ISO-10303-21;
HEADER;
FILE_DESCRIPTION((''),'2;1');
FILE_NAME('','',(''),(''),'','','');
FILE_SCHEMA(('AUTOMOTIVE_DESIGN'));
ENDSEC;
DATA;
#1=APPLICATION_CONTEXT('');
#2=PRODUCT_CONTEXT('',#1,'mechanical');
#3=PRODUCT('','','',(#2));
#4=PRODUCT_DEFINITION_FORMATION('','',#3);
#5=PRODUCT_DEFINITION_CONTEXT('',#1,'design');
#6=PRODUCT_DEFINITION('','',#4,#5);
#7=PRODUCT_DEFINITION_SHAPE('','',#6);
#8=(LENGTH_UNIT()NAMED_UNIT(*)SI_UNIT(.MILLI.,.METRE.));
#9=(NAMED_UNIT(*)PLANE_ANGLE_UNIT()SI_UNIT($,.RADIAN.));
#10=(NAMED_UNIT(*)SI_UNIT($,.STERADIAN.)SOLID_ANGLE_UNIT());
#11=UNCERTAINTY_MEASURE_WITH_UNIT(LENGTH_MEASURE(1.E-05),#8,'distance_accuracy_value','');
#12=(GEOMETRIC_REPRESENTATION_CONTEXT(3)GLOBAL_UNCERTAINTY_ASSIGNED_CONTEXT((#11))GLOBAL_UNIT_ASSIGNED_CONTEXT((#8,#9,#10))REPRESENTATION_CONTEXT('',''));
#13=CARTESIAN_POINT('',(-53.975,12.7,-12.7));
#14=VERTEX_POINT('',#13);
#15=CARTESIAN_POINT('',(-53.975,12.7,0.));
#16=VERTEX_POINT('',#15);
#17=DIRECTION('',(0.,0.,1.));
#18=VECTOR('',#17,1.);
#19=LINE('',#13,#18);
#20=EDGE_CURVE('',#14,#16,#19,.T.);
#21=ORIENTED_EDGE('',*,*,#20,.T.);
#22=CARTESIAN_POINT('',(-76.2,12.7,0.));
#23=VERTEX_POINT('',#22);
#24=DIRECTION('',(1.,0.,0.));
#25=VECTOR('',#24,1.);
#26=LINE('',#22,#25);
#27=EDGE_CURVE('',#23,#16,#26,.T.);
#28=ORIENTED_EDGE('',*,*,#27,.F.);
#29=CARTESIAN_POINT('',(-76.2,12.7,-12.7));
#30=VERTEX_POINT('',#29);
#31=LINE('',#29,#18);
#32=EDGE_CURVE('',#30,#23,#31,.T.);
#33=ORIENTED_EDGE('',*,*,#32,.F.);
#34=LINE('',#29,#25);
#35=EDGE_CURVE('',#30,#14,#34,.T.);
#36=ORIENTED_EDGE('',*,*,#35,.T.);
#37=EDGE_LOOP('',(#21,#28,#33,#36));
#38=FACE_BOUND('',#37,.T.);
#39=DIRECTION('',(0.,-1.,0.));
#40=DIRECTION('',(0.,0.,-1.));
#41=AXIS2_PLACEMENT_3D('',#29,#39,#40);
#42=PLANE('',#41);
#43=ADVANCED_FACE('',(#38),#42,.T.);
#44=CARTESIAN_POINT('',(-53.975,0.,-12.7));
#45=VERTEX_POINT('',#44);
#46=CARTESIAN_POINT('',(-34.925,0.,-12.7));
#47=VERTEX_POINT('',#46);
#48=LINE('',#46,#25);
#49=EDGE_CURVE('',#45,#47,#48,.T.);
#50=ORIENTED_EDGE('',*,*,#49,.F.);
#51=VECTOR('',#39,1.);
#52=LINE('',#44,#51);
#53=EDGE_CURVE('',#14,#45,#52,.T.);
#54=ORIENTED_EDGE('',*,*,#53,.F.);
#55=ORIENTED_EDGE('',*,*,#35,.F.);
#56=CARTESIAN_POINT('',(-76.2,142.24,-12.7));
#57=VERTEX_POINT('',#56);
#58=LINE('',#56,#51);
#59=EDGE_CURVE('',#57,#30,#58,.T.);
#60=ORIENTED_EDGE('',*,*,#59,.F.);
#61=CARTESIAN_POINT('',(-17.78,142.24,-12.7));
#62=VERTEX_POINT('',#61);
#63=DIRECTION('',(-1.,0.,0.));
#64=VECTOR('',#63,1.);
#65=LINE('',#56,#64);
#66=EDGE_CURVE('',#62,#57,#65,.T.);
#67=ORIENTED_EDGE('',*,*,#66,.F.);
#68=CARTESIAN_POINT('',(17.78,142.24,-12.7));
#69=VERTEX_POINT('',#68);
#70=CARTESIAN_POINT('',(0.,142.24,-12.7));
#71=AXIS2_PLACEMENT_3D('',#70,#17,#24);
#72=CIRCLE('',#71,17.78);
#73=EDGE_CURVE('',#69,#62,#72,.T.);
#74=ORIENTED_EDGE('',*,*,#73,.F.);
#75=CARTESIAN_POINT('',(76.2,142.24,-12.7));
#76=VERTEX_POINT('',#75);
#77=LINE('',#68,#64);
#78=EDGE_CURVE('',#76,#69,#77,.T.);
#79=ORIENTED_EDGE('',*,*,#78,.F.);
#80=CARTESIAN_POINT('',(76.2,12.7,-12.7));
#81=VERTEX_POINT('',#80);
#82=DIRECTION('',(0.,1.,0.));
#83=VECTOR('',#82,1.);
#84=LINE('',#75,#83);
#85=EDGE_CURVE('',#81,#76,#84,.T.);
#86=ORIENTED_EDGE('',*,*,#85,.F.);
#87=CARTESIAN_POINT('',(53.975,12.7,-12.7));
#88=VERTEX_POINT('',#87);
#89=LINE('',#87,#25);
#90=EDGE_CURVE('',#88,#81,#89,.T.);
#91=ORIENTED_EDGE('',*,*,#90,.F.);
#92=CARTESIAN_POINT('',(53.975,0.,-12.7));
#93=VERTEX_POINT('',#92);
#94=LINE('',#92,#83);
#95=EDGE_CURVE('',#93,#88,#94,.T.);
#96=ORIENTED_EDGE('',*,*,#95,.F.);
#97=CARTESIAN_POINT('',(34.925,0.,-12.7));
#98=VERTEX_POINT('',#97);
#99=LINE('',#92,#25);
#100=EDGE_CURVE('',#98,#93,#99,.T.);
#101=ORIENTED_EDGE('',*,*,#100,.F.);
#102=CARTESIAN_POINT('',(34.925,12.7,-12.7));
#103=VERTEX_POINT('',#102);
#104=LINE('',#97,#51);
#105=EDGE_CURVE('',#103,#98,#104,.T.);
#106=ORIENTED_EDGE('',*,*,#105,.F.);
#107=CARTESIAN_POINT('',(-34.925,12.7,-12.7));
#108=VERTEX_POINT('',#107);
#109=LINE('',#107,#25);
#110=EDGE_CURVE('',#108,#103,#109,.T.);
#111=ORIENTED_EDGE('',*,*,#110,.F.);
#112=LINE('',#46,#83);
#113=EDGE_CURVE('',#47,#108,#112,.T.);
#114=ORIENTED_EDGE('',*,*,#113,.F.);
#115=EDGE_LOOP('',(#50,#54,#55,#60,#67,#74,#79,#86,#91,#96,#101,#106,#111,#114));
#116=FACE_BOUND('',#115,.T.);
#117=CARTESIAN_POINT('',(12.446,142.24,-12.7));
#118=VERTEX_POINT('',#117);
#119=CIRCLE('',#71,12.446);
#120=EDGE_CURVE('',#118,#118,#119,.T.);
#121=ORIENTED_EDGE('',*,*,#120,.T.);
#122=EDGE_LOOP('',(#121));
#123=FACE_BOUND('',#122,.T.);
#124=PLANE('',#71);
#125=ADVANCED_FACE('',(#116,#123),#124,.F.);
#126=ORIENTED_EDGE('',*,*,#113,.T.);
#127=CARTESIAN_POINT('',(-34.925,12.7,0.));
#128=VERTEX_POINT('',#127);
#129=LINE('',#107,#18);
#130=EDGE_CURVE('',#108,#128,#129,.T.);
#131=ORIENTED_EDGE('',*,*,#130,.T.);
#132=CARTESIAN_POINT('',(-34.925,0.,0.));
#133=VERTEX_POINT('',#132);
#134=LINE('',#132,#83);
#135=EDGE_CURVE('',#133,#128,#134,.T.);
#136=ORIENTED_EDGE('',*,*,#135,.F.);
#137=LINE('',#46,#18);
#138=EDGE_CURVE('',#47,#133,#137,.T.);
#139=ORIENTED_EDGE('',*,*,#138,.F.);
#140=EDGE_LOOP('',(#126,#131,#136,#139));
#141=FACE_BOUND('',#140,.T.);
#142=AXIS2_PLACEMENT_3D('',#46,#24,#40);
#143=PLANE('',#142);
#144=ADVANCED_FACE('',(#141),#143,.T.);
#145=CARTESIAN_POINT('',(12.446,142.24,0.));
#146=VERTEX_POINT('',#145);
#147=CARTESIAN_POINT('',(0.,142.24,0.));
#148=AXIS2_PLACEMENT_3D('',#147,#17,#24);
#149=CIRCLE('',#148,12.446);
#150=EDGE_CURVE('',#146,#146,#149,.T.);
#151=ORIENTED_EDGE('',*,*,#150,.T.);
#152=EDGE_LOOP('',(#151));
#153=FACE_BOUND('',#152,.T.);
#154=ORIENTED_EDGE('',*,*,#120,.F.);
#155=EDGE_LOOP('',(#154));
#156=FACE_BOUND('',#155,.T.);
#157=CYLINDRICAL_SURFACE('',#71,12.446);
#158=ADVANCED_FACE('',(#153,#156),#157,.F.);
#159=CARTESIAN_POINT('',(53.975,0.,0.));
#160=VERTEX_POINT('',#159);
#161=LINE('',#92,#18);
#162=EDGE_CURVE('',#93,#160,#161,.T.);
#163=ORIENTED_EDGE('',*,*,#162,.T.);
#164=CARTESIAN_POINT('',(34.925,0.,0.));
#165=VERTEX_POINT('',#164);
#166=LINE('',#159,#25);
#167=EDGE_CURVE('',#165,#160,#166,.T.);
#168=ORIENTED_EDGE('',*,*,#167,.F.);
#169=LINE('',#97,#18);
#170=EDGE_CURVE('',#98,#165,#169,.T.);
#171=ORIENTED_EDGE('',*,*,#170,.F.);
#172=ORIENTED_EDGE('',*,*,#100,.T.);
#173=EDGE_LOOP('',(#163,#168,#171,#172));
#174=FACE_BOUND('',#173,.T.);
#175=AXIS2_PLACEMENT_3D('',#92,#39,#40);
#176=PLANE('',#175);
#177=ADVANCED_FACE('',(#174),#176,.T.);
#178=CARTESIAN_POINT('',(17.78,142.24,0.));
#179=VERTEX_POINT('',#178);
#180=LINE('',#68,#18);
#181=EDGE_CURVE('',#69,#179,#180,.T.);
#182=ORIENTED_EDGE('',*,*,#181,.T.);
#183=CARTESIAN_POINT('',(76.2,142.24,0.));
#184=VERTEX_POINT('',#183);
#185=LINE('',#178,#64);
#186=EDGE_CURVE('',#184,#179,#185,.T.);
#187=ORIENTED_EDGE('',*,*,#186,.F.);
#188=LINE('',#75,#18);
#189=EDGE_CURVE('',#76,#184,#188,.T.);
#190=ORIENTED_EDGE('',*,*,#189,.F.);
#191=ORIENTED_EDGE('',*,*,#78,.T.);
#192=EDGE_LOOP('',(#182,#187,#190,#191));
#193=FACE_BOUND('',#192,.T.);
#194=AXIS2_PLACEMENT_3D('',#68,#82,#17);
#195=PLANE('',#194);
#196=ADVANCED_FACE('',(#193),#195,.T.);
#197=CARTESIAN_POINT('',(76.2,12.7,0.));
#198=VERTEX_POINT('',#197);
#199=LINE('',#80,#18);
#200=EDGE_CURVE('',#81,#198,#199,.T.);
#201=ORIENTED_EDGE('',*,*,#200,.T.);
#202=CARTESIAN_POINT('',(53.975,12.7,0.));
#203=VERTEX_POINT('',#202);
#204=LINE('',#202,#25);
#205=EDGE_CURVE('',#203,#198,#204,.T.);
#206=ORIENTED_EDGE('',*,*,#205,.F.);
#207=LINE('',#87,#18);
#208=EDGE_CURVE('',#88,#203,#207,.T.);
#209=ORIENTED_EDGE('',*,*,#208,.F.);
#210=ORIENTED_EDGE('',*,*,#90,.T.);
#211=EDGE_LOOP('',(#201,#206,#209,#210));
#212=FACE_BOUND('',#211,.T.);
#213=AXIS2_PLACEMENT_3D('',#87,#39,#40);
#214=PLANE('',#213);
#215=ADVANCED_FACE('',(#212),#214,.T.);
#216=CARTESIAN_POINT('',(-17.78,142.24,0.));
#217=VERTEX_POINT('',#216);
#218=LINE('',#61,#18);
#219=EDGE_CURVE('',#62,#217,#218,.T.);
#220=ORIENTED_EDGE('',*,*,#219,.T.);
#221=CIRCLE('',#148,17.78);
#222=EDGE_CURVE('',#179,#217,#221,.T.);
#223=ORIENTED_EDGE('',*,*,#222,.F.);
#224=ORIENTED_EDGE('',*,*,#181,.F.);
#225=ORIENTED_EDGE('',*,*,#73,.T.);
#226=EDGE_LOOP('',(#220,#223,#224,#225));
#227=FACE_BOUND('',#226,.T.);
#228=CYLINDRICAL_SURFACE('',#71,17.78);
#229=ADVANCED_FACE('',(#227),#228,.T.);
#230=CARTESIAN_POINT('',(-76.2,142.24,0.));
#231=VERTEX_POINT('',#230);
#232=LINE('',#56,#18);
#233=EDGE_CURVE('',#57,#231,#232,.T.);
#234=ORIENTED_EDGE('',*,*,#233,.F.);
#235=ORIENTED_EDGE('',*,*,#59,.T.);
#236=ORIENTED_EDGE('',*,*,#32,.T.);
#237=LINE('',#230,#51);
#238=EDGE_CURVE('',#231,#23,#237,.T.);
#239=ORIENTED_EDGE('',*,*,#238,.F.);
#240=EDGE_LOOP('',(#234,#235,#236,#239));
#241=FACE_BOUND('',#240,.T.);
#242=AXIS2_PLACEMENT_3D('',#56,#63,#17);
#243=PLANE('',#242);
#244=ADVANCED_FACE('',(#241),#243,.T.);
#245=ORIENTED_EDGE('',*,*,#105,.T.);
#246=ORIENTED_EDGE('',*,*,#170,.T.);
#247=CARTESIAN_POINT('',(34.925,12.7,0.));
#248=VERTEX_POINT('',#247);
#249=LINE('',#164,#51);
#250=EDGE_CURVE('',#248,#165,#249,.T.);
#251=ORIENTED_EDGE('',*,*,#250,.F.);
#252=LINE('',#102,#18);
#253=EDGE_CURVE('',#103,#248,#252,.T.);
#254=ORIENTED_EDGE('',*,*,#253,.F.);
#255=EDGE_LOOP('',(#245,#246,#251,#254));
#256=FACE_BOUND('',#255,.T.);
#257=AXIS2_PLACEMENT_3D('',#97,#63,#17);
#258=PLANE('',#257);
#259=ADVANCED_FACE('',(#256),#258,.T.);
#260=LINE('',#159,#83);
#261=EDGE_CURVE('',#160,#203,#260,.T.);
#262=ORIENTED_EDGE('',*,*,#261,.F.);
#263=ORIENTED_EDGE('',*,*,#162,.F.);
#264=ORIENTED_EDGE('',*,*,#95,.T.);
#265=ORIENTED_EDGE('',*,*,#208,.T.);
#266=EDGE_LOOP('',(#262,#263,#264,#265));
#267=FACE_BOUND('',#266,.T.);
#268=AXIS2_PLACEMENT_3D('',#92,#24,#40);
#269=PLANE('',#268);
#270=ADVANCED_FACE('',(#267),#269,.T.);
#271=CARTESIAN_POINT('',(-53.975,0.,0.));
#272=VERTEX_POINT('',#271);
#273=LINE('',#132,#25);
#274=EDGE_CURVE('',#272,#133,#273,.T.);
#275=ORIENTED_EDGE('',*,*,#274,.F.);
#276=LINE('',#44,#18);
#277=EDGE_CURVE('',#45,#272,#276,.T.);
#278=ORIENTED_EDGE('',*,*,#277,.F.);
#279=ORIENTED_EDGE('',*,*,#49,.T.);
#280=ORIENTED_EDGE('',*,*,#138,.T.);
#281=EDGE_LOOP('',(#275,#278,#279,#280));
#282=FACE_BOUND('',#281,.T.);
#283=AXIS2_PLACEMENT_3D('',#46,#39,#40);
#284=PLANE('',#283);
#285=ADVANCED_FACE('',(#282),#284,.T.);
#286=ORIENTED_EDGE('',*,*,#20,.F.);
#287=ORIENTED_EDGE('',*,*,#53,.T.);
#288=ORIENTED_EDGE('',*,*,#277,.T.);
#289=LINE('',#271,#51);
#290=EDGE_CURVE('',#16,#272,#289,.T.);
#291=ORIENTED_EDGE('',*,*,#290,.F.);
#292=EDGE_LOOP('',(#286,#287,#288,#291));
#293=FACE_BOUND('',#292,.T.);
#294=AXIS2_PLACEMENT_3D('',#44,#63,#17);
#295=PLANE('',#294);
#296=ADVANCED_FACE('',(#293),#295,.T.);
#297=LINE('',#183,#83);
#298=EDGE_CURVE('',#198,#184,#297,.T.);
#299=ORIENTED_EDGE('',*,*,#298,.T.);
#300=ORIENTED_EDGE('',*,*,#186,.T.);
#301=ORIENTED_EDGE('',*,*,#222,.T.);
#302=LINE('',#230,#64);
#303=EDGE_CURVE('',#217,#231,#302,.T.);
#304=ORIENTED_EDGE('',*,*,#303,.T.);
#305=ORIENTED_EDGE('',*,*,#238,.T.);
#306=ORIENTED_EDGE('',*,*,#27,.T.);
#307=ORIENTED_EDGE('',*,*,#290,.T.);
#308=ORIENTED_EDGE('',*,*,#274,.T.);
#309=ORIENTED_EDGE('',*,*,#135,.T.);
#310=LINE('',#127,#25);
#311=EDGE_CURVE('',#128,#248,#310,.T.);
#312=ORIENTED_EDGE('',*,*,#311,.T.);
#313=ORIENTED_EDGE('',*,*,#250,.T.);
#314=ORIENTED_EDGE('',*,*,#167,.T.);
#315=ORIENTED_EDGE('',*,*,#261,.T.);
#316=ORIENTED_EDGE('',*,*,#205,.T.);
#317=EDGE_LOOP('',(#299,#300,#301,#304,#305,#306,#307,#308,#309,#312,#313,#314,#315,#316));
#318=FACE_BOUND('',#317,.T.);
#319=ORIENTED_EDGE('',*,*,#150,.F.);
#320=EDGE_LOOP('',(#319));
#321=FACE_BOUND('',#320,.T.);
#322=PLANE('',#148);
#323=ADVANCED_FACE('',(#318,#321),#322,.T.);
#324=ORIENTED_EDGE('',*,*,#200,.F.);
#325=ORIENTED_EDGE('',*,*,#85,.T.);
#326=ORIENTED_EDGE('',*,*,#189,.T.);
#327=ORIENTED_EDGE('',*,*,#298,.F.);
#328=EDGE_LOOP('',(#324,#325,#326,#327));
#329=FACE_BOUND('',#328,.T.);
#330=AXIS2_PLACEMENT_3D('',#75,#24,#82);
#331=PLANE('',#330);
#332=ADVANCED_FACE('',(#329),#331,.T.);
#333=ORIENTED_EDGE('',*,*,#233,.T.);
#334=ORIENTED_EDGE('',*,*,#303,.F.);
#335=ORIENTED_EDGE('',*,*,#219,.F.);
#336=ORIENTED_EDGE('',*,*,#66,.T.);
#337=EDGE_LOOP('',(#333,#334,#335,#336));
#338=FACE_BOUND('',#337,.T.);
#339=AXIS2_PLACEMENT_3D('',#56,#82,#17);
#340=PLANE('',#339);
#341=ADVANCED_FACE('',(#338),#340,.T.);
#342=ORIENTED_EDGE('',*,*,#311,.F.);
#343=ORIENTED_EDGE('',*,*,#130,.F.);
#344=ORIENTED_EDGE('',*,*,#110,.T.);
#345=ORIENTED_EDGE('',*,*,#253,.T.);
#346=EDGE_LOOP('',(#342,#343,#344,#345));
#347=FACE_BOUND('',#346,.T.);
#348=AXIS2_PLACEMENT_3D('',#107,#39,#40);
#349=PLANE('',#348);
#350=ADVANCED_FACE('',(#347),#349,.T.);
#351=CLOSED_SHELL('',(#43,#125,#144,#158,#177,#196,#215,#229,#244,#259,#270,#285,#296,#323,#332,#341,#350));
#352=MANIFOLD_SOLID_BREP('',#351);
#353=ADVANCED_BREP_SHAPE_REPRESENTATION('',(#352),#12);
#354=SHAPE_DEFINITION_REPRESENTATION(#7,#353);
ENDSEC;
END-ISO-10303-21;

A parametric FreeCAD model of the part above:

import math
import FreeCAD as App
import Part
import Sketcher
Q = App.Units.Quantity

doc = App.newDocument("Part")
body = doc.addObject("PartDesign::Body", "Body")

sketch1 = body.newObject("Sketcher::SketchObject", "Sketch")
sketch1.AttachmentSupport = (doc.getObject("XY_Plane"), [""])
sketch1.MapMode = "FlatFace"
sketch1.addGeometry([
    Part.LineSegment(App.Vector(-17.78, 142.24, 0), App.Vector(-76.2, 142.24, 0)),
    Part.LineSegment(App.Vector(-76.2, 142.24, 0), App.Vector(-76.2, 12.7, 0)),
    Part.LineSegment(App.Vector(-76.2, 12.7, 0), App.Vector(-53.975, 12.7, 0)),
    Part.LineSegment(App.Vector(-53.975, 12.7, 0), App.Vector(-53.975, 0, 0)),
    Part.LineSegment(App.Vector(-53.975, 0, 0), App.Vector(-34.925, 0, 0)),
    Part.LineSegment(App.Vector(-34.925, 0, 0), App.Vector(-34.925, 12.7, 0)),
    Part.LineSegment(App.Vector(-34.925, 12.7, 0), App.Vector(34.925, 12.7, 0)),
    Part.LineSegment(App.Vector(34.925, 12.7, 0), App.Vector(34.925, 0, 0)),
    Part.LineSegment(App.Vector(34.925, 0, 0), App.Vector(53.975, 0, 0)),
    Part.LineSegment(App.Vector(53.975, 0, 0), App.Vector(53.975, 12.7, 0)),
    Part.LineSegment(App.Vector(53.975, 12.7, 0), App.Vector(76.2, 12.7, 0)),
    Part.LineSegment(App.Vector(76.2, 12.7, 0), App.Vector(76.2, 142.24, 0)),
    Part.LineSegment(App.Vector(76.2, 142.24, 0), App.Vector(17.78, 142.24, 0)),
    Part.ArcOfCircle(Part.Circle(App.Vector(0, 142.24, 0), App.Vector(0, 0, 1), 17.78), math.radians(0), math.radians(180)),
    Part.Circle(App.Vector(0, 142.24, 0), App.Vector(0, 0, 1), 12.446),
], False)
sketch1.addConstraint([
    Sketcher.Constraint("Coincident", 0, 2, 1, 1),
    Sketcher.Constraint("Coincident", 1, 2, 2, 1),
    Sketcher.Constraint("Coincident", 2, 2, 3, 1),
    Sketcher.Constraint("Coincident", 3, 2, 4, 1),
    Sketcher.Constraint("Coincident", 4, 2, 5, 1),
    Sketcher.Constraint("Coincident", 5, 2, 6, 1),
    Sketcher.Constraint("Coincident", 6, 2, 7, 1),
    Sketcher.Constraint("Coincident", 7, 2, 8, 1),
    Sketcher.Constraint("Coincident", 8, 2, 9, 1),
    Sketcher.Constraint("Coincident", 9, 2, 10, 1),
    Sketcher.Constraint("Coincident", 10, 2, 11, 1),
    Sketcher.Constraint("Coincident", 11, 2, 12, 1),
    Sketcher.Constraint("Coincident", 12, 2, 13, 1),
    Sketcher.Constraint("Coincident", 13, 2, 0, 1),
    Sketcher.Constraint("Horizontal", 0),
    Sketcher.Constraint("Vertical", 1),
    Sketcher.Constraint("Horizontal", 2),
    Sketcher.Constraint("Vertical", 3),
    Sketcher.Constraint("Horizontal", 4),
    Sketcher.Constraint("Vertical", 5),
    Sketcher.Constraint("Horizontal", 6),
    Sketcher.Constraint("Vertical", 7),
    Sketcher.Constraint("Horizontal", 8),
    Sketcher.Constraint("Vertical", 9),
    Sketcher.Constraint("Horizontal", 10),
    Sketcher.Constraint("Vertical", 11),
    Sketcher.Constraint("Horizontal", 12),
    Sketcher.Constraint("Coincident", 14, 3, 13, 3),
    Sketcher.Constraint("Symmetric", 4, 2, 7, 2, -1, 1),
    Sketcher.Constraint("Symmetric", 3, 2, 8, 2, -2),
    Sketcher.Constraint("Symmetric", 1, 2, 10, 2, -2),
    Sketcher.Constraint("Symmetric", 12, 2, 13, 2, -2),
    Sketcher.Constraint("Horizontal", 14, 3, 0, 2),
    Sketcher.Constraint("Horizontal", 2, 2, 5, 2),
    Sketcher.Constraint("Radius", 13, Q("0.7 in")),
    Sketcher.Constraint("Diameter", 14, Q("0.98 in")),
    Sketcher.Constraint("DistanceX", 0, 2, 0, 1, Q("2.3 in")),
    Sketcher.Constraint("DistanceY", 1, 2, 1, 1, Q("5.1 in")),
    Sketcher.Constraint("DistanceY", 3, 2, 3, 1, Q("0.5 in")),
    Sketcher.Constraint("DistanceX", 4, 1, 4, 2, Q("0.75 in")),
    Sketcher.Constraint("DistanceX", 6, 1, 6, 2, Q("2.75 in")),
])
pad1 = body.newObject("PartDesign::Pad", "Pad")
pad1.Profile = sketch1
pad1.Length = Q("0.5 in")
pad1.Reversed = True

doc.recompute()
